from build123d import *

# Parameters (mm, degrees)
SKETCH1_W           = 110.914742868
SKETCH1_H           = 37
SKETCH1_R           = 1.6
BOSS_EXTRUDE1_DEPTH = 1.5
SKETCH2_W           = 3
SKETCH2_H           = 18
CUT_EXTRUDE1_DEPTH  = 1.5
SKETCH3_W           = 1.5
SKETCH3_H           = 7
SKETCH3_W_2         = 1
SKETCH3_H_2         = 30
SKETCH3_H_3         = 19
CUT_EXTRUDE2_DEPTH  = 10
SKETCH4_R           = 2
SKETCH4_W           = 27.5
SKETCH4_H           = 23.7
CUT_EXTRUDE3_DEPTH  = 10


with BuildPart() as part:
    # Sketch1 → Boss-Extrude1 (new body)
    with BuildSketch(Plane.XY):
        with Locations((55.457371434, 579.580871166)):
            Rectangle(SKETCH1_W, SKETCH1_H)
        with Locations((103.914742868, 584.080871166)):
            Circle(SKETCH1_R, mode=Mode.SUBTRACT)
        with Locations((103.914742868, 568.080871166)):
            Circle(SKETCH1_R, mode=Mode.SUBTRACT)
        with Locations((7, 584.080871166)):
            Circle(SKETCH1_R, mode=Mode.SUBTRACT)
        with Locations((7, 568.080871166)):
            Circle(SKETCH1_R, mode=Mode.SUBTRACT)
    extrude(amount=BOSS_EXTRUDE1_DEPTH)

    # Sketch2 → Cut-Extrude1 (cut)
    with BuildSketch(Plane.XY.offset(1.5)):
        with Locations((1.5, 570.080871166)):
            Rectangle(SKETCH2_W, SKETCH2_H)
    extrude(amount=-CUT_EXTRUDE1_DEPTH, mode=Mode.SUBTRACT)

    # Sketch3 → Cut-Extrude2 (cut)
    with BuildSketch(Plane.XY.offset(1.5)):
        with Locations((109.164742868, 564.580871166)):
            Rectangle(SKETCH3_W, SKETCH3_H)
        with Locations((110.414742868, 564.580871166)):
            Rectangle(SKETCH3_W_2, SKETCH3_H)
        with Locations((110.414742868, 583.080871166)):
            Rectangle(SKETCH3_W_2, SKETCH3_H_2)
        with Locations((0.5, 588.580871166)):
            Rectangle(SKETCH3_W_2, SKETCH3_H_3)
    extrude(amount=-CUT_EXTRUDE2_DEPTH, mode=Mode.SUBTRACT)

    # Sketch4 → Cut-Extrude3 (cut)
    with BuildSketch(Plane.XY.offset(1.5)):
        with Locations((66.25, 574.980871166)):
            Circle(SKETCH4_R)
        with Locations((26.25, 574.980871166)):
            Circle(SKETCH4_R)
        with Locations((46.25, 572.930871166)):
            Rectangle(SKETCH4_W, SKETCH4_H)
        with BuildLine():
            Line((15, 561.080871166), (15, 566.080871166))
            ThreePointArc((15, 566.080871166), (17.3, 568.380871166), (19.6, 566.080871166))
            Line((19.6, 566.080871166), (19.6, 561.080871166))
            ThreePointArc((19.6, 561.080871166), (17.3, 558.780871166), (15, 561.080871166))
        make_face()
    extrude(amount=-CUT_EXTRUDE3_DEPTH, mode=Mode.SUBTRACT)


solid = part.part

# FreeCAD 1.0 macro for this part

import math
import FreeCAD as App
import Part
import Sketcher

V = App.Vector
Q = App.Units.Quantity


def add_polygon(sketch, points):
    """Adds a closed chain of lines whose ends are joined by coincident constraints."""
    first, n = sketch.GeometryCount, len(points)
    for a, b in zip(points, points[1:] + points[:1]):
        sketch.addGeometry(Part.LineSegment(App.Vector(*a, 0), App.Vector(*b, 0)), False)
    for i in range(n):
        sketch.addConstraint(Sketcher.Constraint("Coincident", first + i, 2, first + (i + 1) % n, 1))

doc = App.newDocument("Part")
params = doc.addObject("Spreadsheet::Sheet", "Params")
for row, (alias, value) in enumerate([
    ("sketch1_diameter", "3.2 mm"),
    ("sketch1_height", "37 mm"),
    ("pad1_length", "1.5 mm"),
    ("sketch2_width", "3 mm"),
    ("sketch2_height", "18 mm"),
    ("pocket1_length", "1.5 mm"),
    ("sketch3_width", "1 mm"),
    ("sketch3_height", "7 mm"),
    ("sketch3_height2", "37 mm"),
    ("sketch3_height3", "19 mm"),
    ("sketch3_width2", "2.5 mm"),
    ("pocket2_length", "10 mm"),
    ("sketch4_diameter", "4 mm"),
    ("sketch4_radius", "2.3 mm"),
    ("sketch4_height", "5 mm"),
    ("sketch4_width", "27.5 mm"),
    ("sketch4_height2", "23.7 mm"),
    ("pocket3_length", "10 mm"),
], start=1):
    params.set(f"A{row}", alias)
    params.set(f"B{row}", "=" + value)
    params.setAlias(f"B{row}", alias)

body = doc.addObject("PartDesign::Body", "Body")

# Sketch on XY plane
sketch1 = body.newObject("Sketcher::SketchObject", "Sketch")
sketch1.AttachmentSupport = (doc.getObject("XY_Plane"), [""])
sketch1.MapMode = "FlatFace"
add_polygon(sketch1, [(0, 598.1), (0, 561.1), (110.9, 561.1), (110.9, 598.1)])  # lines 0-3
sketch1.addGeometry(Part.Circle(V(7, 568.1, 0), V(0, 0, 1), 1.6), False)  # 4
sketch1.addGeometry(Part.Circle(V(103.9, 568.1, 0), V(0, 0, 1), 1.6), False)  # 5
sketch1.addGeometry(Part.Circle(V(7, 584.1, 0), V(0, 0, 1), 1.6), False)  # 6
sketch1.addGeometry(Part.Circle(V(103.9, 584.1, 0), V(0, 0, 1), 1.6), False)  # 7
sketch1.addConstraint(Sketcher.Constraint("Vertical", 0))
sketch1.addConstraint(Sketcher.Constraint("Horizontal", 1))
sketch1.addConstraint(Sketcher.Constraint("Vertical", 2))
sketch1.addConstraint(Sketcher.Constraint("Horizontal", 3))
sketch1.addConstraint(Sketcher.Constraint("Equal", 4, 5))
sketch1.addConstraint(Sketcher.Constraint("Equal", 5, 6))
sketch1.addConstraint(Sketcher.Constraint("Equal", 6, 7))
sketch1.addConstraint(Sketcher.Constraint("PointOnObject", 0, 2, -2))
sketch1.addConstraint(Sketcher.Constraint("Horizontal", 4, 3, 5, 3))
sketch1.addConstraint(Sketcher.Constraint("Horizontal", 6, 3, 7, 3))
sketch1.addConstraint(Sketcher.Constraint("Vertical", 4, 3, 6, 3))
sketch1.addConstraint(Sketcher.Constraint("Vertical", 5, 3, 7, 3))
sketch1.addConstraint(Sketcher.Constraint("Diameter", 4, Q("3.2 mm")))
sketch1.addConstraint(Sketcher.Constraint("DistanceY", 0, 2, 0, 1, Q("37 mm")))
sketch1.addConstraint(Sketcher.Constraint("DistanceX", -1, 1, 4, 3, Q("7 mm")))
sketch1.addConstraint(Sketcher.Constraint("DistanceY", 4, 3, 6, 3, Q("16 mm")))
sketch1.addConstraint(Sketcher.Constraint("DistanceY", 0, 2, 4, 3, Q("7 mm")))
sketch1.addConstraint(Sketcher.Constraint("DistanceX", 5, 3, 1, 2, Q("7 mm")))
sketch1.addConstraint(Sketcher.Constraint("DistanceX", 1, 1, 1, 2, Q("110.914743 mm")))
sketch1.addConstraint(Sketcher.Constraint("DistanceY", -1, 1, 4, 3, Q("568.080871 mm")))
sketch1.setExpression("Constraints[16]", "Params.sketch1_diameter")
sketch1.setExpression("Constraints[17]", "Params.sketch1_height")
pad1 = body.newObject("PartDesign::Pad", "Pad")
pad1.Profile = sketch1
pad1.setExpression("Length", "Params.pad1_length")

# Sketch on XY plane
sketch2 = body.newObject("Sketcher::SketchObject", "Sketch001")
sketch2.AttachmentSupport = (doc.getObject("XY_Plane"), [""])
sketch2.MapMode = "FlatFace"
sketch2.AttachmentOffset = App.Placement(V(0, 0, 1.5), App.Rotation())
add_polygon(sketch2, [(0, 579.1), (0, 561.1), (3, 561.1), (3, 579.1)])  # lines 0-3
sketch2.addConstraint(Sketcher.Constraint("Vertical", 0))
sketch2.addConstraint(Sketcher.Constraint("Horizontal", 1))
sketch2.addConstraint(Sketcher.Constraint("Vertical", 2))
sketch2.addConstraint(Sketcher.Constraint("Horizontal", 3))
sketch2.addConstraint(Sketcher.Constraint("PointOnObject", 0, 2, -2))
sketch2.addConstraint(Sketcher.Constraint("DistanceX", 1, 1, 1, 2, Q("3 mm")))
sketch2.addConstraint(Sketcher.Constraint("DistanceY", 0, 2, 0, 1, Q("18 mm")))
sketch2.addConstraint(Sketcher.Constraint("DistanceY", -1, 1, 0, 2, Q("561.080871 mm")))
sketch2.setExpression("Constraints[9]", "Params.sketch2_width")
sketch2.setExpression("Constraints[10]", "Params.sketch2_height")
pocket1 = body.newObject("PartDesign::Pocket", "Pocket")
pocket1.Profile = sketch2
pocket1.setExpression("Length", "Params.pocket1_length")

# Sketch on XY plane
sketch3 = body.newObject("Sketcher::SketchObject", "Sketch002")
sketch3.AttachmentSupport = (doc.getObject("XY_Plane"), [""])
sketch3.MapMode = "FlatFace"
sketch3.AttachmentOffset = App.Placement(V(0, 0, 1.5), App.Rotation())
add_polygon(sketch3, [(108.4, 568.1), (108.4, 561.1), (110.9, 561.1), (110.9, 598.1), (109.9, 598.1), (109.9, 568.1)])  # lines 0-5
add_polygon(sketch3, [(0, 598.1), (0, 579.1), (1, 579.1), (1, 598.1)])  # lines 6-9
sketch3.addConstraint(Sketcher.Constraint("Vertical", 0))
sketch3.addConstraint(Sketcher.Constraint("Horizontal", 1))
sketch3.addConstraint(Sketcher.Constraint("Vertical", 2))
sketch3.addConstraint(Sketcher.Constraint("Horizontal", 3))
sketch3.addConstraint(Sketcher.Constraint("Vertical", 4))
sketch3.addConstraint(Sketcher.Constraint("Horizontal", 5))
sketch3.addConstraint(Sketcher.Constraint("Vertical", 6))
sketch3.addConstraint(Sketcher.Constraint("Horizontal", 7))
sketch3.addConstraint(Sketcher.Constraint("Vertical", 8))
sketch3.addConstraint(Sketcher.Constraint("Horizontal", 9))
sketch3.addConstraint(Sketcher.Constraint("PointOnObject", 6, 2, -2))
sketch3.addConstraint(Sketcher.Constraint("Horizontal", 3, 2, 8, 2))
sketch3.addConstraint(Sketcher.Constraint("Equal", 3, 7))
sketch3.addConstraint(Sketcher.Constraint("DistanceX", 3, 2, 3, 1, Q("1 mm")))
sketch3.addConstraint(Sketcher.Constraint("DistanceY", 0, 2, 0, 1, Q("7 mm")))
sketch3.addConstraint(Sketcher.Constraint("DistanceY", 2, 1, 2, 2, Q("37 mm")))
sketch3.addConstraint(Sketcher.Constraint("DistanceY", 6, 2, 6, 1, Q("19 mm")))
sketch3.addConstraint(Sketcher.Constraint("DistanceX", 1, 1, 1, 2, Q("2.5 mm")))
sketch3.addConstraint(Sketcher.Constraint("DistanceY", -1, 1, 0, 2, Q("561.080871 mm")))
sketch3.addConstraint(Sketcher.Constraint("DistanceX", -1, 1, 0, 2, Q("108.414743 mm")))
sketch3.setExpression("Constraints[23]", "Params.sketch3_width")
sketch3.setExpression("Constraints[24]", "Params.sketch3_height")
sketch3.setExpression("Constraints[25]", "Params.sketch3_height2")
sketch3.setExpression("Constraints[26]", "Params.sketch3_height3")
sketch3.setExpression("Constraints[27]", "Params.sketch3_width2")
pocket2 = body.newObject("PartDesign::Pocket", "Pocket001")
pocket2.Profile = sketch3
pocket2.setExpression("Length", "Params.pocket2_length")

# Sketch on XY plane
sketch4 = body.newObject("Sketcher::SketchObject", "Sketch003")
sketch4.AttachmentSupport = (doc.getObject("XY_Plane"), [""])
sketch4.MapMode = "FlatFace"
sketch4.AttachmentOffset = App.Placement(V(0, 0, 1.5), App.Rotation())
sketch4.addGeometry(Part.Circle(V(66.2, 575, 0), V(0, 0, 1), 2), False)  # 0
sketch4.addGeometry(Part.Circle(V(26.2, 575, 0), V(0, 0, 1), 2), False)  # 1
add_polygon(sketch4, [(32.5, 584.8), (32.5, 561.1), (60, 561.1), (60, 584.8)])  # lines 2-5
sketch4.addGeometry(Part.LineSegment(V(15, 566.1, 0), V(15, 561.1, 0)), False)  # 6
sketch4.addGeometry(Part.ArcOfCircle(Part.Circle(V(17.3, 561.1, 0), V(0, 0, 1), 2.3), math.radians(180), math.radians(360)), False)  # 7
sketch4.addGeometry(Part.LineSegment(V(19.6, 561.1, 0), V(19.6, 566.1, 0)), False)  # 8
sketch4.addGeometry(Part.ArcOfCircle(Part.Circle(V(17.3, 566.1, 0), V(0, 0, 1), 2.3), math.radians(0), math.radians(180)), False)  # 9
sketch4.addConstraint(Sketcher.Constraint("Tangent", 6, 2, 7, 1))
sketch4.addConstraint(Sketcher.Constraint("Tangent", 7, 2, 8, 1))
sketch4.addConstraint(Sketcher.Constraint("Tangent", 8, 2, 9, 1))
sketch4.addConstraint(Sketcher.Constraint("Tangent", 9, 2, 6, 1))
sketch4.addConstraint(Sketcher.Constraint("Vertical", 2))
sketch4.addConstraint(Sketcher.Constraint("Horizontal", 3))
sketch4.addConstraint(Sketcher.Constraint("Vertical", 4))
sketch4.addConstraint(Sketcher.Constraint("Horizontal", 5))
sketch4.addConstraint(Sketcher.Constraint("Vertical", 6))
sketch4.addConstraint(Sketcher.Constraint("Vertical", 8))
sketch4.addConstraint(Sketcher.Constraint("Equal", 0, 1))
sketch4.addConstraint(Sketcher.Constraint("Horizontal", 0, 3, 1, 3))
sketch4.addConstraint(Sketcher.Constraint("Horizontal", 7, 3, 2, 2))
sketch4.addConstraint(Sketcher.Constraint("Diameter", 0, Q("4 mm")))
sketch4.addConstraint(Sketcher.Constraint("Radius", 7, Q("2.3 mm")))
sketch4.addConstraint(Sketcher.Constraint("DistanceY", 6, 2, 6, 1, Q("5 mm")))
sketch4.addConstraint(Sketcher.Constraint("DistanceX", 3, 1, 3, 2, Q("27.5 mm")))
sketch4.addConstraint(Sketcher.Constraint("DistanceY", 2, 2, 2, 1, Q("23.7 mm")))
sketch4.addConstraint(Sketcher.Constraint("DistanceX", -1, 1, 3, 2, Q("60 mm")))
sketch4.addConstraint(Sketcher.Constraint("DistanceX", -1, 1, 6, 2, Q("15 mm")))
sketch4.addConstraint(Sketcher.Constraint("DistanceX", 1, 3, 0, 3, Q("40 mm")))
sketch4.addConstraint(Sketcher.Constraint("DistanceY", 7, 3, 1, 3, Q("13.9 mm")))
sketch4.addConstraint(Sketcher.Constraint("DistanceX", -1, 1, 0, 3, Q("66.25 mm")))
sketch4.addConstraint(Sketcher.Constraint("DistanceY", -1, 1, 0, 3, Q("574.980871 mm")))
sketch4.setExpression("Constraints[17]", "Params.sketch4_diameter")
sketch4.setExpression("Constraints[18]", "Params.sketch4_radius")
sketch4.setExpression("Constraints[19]", "Params.sketch4_height")
sketch4.setExpression("Constraints[20]", "Params.sketch4_width")
sketch4.setExpression("Constraints[21]", "Params.sketch4_height2")
pocket3 = body.newObject("PartDesign::Pocket", "Pocket002")
pocket3.Profile = sketch4
pocket3.setExpression("Length", "Params.pocket3_length")

doc.recompute()
